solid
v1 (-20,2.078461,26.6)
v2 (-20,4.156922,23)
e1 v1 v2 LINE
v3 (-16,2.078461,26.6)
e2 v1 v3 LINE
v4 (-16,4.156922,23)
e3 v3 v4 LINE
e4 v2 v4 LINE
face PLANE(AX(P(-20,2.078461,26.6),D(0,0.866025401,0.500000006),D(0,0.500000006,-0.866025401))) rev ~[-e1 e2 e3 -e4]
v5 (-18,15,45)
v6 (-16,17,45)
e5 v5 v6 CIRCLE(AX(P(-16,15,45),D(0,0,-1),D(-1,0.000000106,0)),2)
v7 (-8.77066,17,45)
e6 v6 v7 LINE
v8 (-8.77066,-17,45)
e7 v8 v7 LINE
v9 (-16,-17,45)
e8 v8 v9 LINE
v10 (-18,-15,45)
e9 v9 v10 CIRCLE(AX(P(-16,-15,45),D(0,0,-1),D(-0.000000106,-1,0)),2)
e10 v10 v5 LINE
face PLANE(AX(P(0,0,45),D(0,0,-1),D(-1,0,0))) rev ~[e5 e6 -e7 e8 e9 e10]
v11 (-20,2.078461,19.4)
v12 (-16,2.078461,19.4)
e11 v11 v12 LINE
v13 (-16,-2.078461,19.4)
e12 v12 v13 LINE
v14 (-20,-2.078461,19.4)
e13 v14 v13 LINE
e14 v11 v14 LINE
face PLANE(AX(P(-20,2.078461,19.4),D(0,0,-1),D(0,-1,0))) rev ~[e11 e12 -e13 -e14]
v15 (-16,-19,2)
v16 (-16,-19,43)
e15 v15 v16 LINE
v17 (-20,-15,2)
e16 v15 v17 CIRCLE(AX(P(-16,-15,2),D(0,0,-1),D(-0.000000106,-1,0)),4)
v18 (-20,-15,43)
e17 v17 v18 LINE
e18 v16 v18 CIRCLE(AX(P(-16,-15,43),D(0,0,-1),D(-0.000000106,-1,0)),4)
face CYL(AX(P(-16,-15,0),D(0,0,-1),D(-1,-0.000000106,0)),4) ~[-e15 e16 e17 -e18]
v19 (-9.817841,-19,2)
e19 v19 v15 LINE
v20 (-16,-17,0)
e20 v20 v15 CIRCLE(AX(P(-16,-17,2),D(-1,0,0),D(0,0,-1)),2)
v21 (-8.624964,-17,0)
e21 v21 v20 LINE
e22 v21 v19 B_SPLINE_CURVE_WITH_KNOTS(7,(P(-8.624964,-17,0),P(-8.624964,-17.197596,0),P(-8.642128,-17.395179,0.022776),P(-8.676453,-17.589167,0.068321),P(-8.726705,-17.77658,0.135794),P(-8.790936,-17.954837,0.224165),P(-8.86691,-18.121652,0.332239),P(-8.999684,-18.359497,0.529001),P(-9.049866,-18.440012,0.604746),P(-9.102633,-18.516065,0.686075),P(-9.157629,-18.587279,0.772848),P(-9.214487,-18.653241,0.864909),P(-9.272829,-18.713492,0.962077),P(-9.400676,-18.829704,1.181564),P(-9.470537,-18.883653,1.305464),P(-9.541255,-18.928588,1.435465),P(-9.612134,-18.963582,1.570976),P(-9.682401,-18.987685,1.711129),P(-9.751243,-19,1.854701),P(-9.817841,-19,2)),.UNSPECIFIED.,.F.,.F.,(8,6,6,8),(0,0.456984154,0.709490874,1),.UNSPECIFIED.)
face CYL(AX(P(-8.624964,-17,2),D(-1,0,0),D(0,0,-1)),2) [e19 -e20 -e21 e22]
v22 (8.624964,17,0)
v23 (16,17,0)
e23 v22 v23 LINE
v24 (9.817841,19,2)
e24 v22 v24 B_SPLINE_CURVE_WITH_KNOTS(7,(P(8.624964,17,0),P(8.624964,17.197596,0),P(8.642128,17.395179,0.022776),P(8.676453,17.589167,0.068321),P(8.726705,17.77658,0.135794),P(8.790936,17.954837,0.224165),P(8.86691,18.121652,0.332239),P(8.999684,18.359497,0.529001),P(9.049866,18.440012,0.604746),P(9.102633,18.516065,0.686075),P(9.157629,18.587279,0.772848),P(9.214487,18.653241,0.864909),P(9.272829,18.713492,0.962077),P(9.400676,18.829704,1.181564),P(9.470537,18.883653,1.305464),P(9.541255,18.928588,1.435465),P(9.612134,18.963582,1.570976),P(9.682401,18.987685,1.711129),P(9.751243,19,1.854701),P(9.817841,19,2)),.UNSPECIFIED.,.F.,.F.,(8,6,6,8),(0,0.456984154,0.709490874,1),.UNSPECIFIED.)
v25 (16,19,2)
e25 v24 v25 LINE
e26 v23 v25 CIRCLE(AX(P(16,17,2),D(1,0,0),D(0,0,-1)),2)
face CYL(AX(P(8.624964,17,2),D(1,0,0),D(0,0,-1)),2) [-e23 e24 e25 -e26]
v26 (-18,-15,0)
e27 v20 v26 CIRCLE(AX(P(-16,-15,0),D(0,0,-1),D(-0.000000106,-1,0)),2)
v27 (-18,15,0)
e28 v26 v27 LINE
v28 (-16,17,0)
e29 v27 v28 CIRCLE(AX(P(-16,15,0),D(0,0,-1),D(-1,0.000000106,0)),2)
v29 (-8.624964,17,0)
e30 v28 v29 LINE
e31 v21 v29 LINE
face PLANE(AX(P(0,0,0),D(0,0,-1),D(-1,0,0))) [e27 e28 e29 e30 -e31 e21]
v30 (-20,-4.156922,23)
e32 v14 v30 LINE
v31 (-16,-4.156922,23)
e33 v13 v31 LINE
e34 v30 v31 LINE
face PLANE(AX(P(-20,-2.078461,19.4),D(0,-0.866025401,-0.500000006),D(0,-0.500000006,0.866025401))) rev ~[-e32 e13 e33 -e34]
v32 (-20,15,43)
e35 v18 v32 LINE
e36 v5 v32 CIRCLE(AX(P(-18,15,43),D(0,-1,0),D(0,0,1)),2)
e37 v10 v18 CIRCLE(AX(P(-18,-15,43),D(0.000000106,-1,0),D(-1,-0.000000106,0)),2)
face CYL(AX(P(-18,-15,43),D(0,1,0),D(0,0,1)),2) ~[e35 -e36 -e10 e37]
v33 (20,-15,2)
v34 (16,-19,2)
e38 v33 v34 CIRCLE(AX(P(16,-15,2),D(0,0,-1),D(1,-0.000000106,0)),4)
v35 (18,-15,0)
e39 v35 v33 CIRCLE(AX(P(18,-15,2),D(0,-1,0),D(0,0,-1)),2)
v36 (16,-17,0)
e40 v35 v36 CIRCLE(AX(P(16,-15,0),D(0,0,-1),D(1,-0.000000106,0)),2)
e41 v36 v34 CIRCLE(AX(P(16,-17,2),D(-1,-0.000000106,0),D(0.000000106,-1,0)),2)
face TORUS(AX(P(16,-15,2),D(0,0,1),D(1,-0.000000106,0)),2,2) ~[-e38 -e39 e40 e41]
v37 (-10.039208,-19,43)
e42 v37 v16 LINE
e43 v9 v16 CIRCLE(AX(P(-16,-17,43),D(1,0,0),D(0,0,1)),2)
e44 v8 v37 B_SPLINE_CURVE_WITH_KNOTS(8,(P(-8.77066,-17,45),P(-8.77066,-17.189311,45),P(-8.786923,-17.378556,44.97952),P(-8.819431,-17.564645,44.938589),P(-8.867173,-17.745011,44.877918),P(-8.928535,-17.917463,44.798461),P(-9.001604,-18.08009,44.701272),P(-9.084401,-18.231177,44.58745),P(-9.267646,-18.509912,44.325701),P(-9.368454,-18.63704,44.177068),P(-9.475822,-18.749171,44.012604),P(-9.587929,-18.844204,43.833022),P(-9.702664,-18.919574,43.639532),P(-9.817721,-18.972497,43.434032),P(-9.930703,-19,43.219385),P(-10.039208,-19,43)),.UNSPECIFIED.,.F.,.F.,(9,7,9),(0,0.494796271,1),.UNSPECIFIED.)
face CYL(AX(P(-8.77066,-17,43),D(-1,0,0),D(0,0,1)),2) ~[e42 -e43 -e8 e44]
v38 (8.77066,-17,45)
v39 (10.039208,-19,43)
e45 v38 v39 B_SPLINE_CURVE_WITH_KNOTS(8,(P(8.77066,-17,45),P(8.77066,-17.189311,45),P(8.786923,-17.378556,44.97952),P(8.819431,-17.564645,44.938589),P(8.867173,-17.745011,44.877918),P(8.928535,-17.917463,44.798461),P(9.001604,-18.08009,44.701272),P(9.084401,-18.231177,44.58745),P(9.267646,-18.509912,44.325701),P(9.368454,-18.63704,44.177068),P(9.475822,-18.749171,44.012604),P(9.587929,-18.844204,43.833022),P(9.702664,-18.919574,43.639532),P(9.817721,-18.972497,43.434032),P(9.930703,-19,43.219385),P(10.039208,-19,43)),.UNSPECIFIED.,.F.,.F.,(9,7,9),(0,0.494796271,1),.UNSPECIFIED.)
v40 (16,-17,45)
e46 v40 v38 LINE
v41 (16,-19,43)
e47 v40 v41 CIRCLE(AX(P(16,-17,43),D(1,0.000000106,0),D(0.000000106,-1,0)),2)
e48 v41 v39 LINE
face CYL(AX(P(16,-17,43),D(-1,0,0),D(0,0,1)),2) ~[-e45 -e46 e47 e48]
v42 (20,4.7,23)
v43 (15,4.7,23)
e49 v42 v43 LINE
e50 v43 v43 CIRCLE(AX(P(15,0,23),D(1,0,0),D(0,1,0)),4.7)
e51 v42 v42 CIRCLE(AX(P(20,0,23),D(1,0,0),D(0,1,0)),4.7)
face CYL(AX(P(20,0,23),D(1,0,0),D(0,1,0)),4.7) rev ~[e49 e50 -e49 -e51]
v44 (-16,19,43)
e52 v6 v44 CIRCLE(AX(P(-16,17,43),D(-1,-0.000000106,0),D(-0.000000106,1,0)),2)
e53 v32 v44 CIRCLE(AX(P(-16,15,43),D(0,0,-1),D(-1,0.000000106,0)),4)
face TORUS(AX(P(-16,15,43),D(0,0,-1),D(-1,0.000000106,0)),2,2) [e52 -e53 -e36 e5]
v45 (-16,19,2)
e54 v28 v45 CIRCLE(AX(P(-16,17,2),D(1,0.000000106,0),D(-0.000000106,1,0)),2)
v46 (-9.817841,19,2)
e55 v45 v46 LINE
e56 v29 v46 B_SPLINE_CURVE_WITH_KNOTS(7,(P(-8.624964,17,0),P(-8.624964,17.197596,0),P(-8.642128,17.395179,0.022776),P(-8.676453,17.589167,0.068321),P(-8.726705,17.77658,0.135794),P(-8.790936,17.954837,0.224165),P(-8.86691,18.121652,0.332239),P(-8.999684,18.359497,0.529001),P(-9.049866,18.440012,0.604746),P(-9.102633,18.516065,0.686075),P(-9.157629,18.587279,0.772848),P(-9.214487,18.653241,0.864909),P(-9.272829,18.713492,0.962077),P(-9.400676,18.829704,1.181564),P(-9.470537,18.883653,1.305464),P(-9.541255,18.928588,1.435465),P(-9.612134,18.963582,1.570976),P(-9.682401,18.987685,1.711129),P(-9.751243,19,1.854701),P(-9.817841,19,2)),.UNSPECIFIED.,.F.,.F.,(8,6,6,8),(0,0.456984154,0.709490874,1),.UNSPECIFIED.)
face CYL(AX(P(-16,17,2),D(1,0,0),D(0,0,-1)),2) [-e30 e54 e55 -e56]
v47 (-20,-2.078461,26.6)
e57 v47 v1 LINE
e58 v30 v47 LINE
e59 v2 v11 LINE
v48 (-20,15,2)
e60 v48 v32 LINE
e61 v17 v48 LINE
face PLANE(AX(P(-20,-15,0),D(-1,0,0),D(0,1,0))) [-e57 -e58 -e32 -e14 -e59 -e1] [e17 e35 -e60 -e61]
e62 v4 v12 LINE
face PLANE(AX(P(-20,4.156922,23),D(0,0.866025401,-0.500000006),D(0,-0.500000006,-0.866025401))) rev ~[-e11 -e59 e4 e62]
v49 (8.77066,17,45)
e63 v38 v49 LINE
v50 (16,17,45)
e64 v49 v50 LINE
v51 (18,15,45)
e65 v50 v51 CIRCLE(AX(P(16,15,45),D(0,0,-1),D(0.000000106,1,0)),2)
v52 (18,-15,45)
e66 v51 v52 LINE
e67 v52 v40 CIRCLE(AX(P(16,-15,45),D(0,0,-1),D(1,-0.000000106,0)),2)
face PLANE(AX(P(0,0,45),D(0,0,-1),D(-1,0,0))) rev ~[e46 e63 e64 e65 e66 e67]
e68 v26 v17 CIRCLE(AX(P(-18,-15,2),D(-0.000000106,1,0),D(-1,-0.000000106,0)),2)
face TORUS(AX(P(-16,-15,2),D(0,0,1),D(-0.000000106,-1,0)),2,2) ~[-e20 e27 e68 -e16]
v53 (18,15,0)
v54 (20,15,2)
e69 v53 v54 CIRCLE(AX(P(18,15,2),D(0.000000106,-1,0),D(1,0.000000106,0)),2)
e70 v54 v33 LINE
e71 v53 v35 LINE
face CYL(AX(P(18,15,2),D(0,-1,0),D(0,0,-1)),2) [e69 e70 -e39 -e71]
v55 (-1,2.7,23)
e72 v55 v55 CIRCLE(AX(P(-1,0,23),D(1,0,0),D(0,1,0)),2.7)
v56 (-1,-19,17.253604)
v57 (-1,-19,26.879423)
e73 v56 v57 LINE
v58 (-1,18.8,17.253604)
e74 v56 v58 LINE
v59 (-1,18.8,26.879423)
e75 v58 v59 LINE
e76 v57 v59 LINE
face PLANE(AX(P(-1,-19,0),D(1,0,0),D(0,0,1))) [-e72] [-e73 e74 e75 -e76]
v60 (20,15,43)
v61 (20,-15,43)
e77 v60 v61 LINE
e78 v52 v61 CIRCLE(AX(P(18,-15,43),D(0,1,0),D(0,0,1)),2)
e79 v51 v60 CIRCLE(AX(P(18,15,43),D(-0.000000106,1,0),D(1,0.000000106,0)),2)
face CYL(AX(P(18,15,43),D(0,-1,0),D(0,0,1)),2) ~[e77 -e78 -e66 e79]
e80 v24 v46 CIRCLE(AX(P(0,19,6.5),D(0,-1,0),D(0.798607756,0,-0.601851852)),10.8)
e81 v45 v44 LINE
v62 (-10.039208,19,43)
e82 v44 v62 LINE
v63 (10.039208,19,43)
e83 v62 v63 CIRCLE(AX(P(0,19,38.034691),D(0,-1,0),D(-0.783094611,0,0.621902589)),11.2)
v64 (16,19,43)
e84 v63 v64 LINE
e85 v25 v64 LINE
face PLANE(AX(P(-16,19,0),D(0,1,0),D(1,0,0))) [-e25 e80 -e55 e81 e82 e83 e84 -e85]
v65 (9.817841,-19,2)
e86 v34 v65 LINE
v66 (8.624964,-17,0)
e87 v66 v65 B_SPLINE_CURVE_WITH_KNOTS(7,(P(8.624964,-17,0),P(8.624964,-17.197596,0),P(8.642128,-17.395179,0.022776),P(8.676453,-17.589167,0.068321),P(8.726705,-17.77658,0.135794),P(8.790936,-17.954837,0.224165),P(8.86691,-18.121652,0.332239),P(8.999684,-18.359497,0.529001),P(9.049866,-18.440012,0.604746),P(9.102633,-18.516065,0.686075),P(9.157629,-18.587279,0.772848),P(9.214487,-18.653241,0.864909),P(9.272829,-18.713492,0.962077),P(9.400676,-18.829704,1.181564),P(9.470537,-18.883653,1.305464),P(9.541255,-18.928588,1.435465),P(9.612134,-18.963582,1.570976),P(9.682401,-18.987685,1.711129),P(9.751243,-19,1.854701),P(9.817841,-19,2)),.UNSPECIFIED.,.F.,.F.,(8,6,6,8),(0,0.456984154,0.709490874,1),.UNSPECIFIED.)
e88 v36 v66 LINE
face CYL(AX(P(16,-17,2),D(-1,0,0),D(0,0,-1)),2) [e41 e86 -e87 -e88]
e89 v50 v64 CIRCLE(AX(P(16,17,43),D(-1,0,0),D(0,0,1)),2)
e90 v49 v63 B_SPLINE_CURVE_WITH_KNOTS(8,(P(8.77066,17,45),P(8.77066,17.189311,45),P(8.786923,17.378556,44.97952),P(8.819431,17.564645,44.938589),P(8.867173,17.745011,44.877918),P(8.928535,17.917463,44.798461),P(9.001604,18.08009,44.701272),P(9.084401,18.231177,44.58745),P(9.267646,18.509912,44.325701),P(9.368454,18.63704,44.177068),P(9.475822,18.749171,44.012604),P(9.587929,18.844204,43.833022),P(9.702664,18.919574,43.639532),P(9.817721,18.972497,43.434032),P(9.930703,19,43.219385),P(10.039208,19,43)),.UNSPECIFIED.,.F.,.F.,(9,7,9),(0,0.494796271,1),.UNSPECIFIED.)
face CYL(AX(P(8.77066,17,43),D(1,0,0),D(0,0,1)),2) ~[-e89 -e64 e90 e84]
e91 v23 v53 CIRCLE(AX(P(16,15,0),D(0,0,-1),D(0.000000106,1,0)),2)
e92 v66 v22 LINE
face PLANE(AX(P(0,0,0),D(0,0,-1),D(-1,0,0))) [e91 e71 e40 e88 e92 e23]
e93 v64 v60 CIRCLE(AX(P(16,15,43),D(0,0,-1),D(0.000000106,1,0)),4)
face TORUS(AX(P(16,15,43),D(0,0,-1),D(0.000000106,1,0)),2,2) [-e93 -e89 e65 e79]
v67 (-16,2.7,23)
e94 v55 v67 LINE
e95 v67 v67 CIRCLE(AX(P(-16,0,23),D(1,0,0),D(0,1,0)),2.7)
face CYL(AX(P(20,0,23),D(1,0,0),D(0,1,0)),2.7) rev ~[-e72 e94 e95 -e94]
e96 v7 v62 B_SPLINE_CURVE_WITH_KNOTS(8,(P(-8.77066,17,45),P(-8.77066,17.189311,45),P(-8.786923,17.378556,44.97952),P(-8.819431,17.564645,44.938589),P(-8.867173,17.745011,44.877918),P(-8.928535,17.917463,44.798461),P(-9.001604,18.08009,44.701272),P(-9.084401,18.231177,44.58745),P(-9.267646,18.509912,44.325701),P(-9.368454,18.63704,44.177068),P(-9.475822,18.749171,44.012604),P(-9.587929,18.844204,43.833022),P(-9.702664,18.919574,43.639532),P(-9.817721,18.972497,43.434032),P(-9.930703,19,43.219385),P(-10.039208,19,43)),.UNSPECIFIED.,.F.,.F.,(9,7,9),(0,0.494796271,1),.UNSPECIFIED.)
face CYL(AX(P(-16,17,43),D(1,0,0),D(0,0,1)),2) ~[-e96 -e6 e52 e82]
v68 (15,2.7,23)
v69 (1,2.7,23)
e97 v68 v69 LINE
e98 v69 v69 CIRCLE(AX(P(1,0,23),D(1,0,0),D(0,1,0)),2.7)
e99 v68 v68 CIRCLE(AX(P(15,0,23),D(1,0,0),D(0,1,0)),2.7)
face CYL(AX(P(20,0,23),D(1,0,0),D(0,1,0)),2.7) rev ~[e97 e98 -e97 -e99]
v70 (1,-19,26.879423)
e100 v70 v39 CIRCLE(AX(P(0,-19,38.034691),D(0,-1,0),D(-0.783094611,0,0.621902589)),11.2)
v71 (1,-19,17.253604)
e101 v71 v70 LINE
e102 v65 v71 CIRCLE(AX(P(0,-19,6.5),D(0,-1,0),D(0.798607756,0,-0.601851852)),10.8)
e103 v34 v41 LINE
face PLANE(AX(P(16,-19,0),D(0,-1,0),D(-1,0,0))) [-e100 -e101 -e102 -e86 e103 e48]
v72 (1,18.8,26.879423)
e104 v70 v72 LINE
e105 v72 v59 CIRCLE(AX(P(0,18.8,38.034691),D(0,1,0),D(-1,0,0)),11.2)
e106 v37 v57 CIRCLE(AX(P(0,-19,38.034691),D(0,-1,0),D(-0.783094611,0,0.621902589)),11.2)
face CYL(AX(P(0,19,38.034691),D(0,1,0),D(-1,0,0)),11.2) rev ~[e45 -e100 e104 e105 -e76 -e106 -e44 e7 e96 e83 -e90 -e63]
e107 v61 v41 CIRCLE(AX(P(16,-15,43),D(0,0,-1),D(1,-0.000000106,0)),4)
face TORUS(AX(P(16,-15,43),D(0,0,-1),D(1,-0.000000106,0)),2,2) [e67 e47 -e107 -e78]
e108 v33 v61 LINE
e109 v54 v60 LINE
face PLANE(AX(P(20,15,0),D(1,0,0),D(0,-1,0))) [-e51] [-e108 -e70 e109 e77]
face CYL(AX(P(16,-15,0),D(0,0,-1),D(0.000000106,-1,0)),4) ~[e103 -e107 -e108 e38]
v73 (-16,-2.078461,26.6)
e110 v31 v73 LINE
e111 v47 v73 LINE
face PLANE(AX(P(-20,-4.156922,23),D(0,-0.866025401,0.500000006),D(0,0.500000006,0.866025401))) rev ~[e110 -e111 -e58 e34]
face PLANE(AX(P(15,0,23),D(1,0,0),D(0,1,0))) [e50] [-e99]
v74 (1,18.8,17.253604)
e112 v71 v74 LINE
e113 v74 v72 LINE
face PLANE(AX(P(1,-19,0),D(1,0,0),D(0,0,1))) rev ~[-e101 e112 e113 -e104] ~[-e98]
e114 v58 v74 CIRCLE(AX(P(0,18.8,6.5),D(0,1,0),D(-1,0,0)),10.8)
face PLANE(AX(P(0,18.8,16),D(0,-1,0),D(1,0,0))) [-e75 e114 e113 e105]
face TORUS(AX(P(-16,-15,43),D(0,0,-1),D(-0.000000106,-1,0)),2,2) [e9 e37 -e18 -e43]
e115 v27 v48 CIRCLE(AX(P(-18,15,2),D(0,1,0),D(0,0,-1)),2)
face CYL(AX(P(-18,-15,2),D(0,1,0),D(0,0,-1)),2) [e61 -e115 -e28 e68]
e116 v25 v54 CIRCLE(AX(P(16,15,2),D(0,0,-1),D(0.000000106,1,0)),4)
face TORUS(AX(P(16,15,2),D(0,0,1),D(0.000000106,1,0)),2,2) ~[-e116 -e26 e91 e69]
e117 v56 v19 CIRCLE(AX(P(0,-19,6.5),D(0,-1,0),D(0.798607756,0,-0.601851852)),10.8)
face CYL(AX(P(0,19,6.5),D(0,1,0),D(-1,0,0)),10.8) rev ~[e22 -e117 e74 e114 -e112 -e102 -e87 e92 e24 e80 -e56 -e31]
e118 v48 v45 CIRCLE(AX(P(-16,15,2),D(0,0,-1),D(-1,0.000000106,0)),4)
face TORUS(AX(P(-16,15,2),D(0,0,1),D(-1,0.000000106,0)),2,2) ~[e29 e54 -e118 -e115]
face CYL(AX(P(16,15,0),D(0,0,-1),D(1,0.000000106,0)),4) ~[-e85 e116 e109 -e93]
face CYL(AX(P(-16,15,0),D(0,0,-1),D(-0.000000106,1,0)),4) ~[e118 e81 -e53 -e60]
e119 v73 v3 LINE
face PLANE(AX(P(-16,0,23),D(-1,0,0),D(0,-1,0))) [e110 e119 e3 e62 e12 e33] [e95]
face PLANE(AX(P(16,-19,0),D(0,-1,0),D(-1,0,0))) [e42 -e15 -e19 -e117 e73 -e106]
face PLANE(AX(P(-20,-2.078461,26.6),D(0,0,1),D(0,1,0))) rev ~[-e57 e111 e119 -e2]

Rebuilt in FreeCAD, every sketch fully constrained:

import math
import FreeCAD as App
import Part
import Sketcher
Q = App.Units.Quantity


def edges_at(feature, points):
    """Names of the edges that pass closest to the given points."""
    edges = feature.Shape.Edges
    near = lambda p: min(range(len(edges)), key=lambda i: edges[i].distToShape(Part.Vertex(*p))[0])
    return sorted({f"Edge{near(p) + 1}" for p in points})

doc = App.newDocument("Part")
body = doc.addObject("PartDesign::Body", "Body")

sketch1 = body.newObject("Sketcher::SketchObject", "Sketch")
sketch1.AttachmentSupport = (doc.getObject("XY_Plane"), [""])
sketch1.MapMode = "FlatFace"
sketch1.addGeometry([
    Part.LineSegment(App.Vector(16, 19, 0), App.Vector(-16, 19, 0)),
    Part.ArcOfCircle(Part.Circle(App.Vector(-16, 15, 0), App.Vector(0, 0, 1), 4), math.radians(90.000006), math.radians(179.999994)),
    Part.LineSegment(App.Vector(-20, 15, 0), App.Vector(-20, -15, 0)),
    Part.ArcOfCircle(Part.Circle(App.Vector(-16, -15, 0), App.Vector(0, 0, 1), 4), math.radians(-179.999994), math.radians(-90.000006)),
    Part.LineSegment(App.Vector(-16, -19, 0), App.Vector(16, -19, 0)),
    Part.ArcOfCircle(Part.Circle(App.Vector(16, -15, 0), App.Vector(0, 0, 1), 4), math.radians(-89.999994), math.radians(-0.000006)),
    Part.LineSegment(App.Vector(20, -15, 0), App.Vector(20, 15, 0)),
    Part.ArcOfCircle(Part.Circle(App.Vector(16, 15, 0), App.Vector(0, 0, 1), 4), math.radians(0.000006), math.radians(89.999994)),
], False)
sketch1.addConstraint([
    Sketcher.Constraint("Tangent", 0, 2, 1, 1),
    Sketcher.Constraint("Tangent", 1, 2, 2, 1),
    Sketcher.Constraint("Tangent", 2, 2, 3, 1),
    Sketcher.Constraint("Tangent", 3, 2, 4, 1),
    Sketcher.Constraint("Tangent", 4, 2, 5, 1),
    Sketcher.Constraint("Tangent", 5, 2, 6, 1),
    Sketcher.Constraint("Tangent", 6, 2, 7, 1),
    Sketcher.Constraint("Tangent", 7, 2, 0, 1),
    Sketcher.Constraint("Horizontal", 0),
    Sketcher.Constraint("Vertical", 2),
    Sketcher.Constraint("Horizontal", 4),
    Sketcher.Constraint("Vertical", 6),
    Sketcher.Constraint("Equal", 1, 3),
    Sketcher.Constraint("Equal", 3, 5),
    Sketcher.Constraint("Equal", 5, 7),
    Sketcher.Constraint("Symmetric", 1, 3, 5, 3, -1, 1),
    Sketcher.Constraint("Radius", 1, 4.0),
    Sketcher.Constraint("DistanceX", 0, 2, 0, 1, 32.0),
    Sketcher.Constraint("DistanceY", 2, 2, 2, 1, 30.0),
])
pad1 = body.newObject("PartDesign::Pad", "Pad")
pad1.Profile = sketch1
pad1.Length = 45

sketch2 = body.newObject("Sketcher::SketchObject", "Sketch001")
sketch2.AttachmentSupport = (doc.getObject("XZ_Plane"), [""])
sketch2.MapMode = "FlatFace"
sketch2.AttachmentOffset = App.Placement(App.Vector(0, 0, -19), App.Rotation())
sketch2.addGeometry([
    Part.Circle(App.Vector(0, 38.034691, 0), App.Vector(0, 0, 1), 11.2),
    Part.Circle(App.Vector(0, 6.5, 0), App.Vector(0, 0, 1), 10.8),
], False)
sketch2.addConstraint([
    Sketcher.Constraint("PointOnObject", 0, 3, -2),
    Sketcher.Constraint("PointOnObject", 1, 3, -2),
    Sketcher.Constraint("Diameter", 0, 22.4),
    Sketcher.Constraint("Diameter", 1, 21.6),
    Sketcher.Constraint("DistanceY", -1, 1, 1, 3, 6.5),
    Sketcher.Constraint("DistanceY", -1, 1, 0, 3, 38.034691),
])
pocket1 = body.newObject("PartDesign::Pocket", "Pocket")
pocket1.Profile = sketch2
pocket1.Type = "ThroughAll"
pocket1.Reversed = True

sketch3 = body.newObject("Sketcher::SketchObject", "Sketch002")
sketch3.AttachmentSupport = (doc.getObject("YZ_Plane"), [""])
sketch3.MapMode = "FlatFace"
sketch3.AttachmentOffset = App.Placement(App.Vector(0, 0, 20), App.Rotation())
sketch3.addGeometry(Part.Circle(App.Vector(0, 23, 0), App.Vector(0, 0, 1), 2.7), False)
sketch3.addConstraint([
    Sketcher.Constraint("PointOnObject", 0, 3, -2),
    Sketcher.Constraint("Diameter", 0, 5.4),
    Sketcher.Constraint("DistanceY", -1, 1, 0, 3, 23.0),
])
pocket2 = body.newObject("PartDesign::Pocket", "Pocket001")
pocket2.Profile = sketch3
pocket2.Type = "ThroughAll"

sketch4 = body.newObject("Sketcher::SketchObject", "Sketch003")
sketch4.AttachmentSupport = (doc.getObject("YZ_Plane"), [""])
sketch4.MapMode = "FlatFace"
sketch4.AttachmentOffset = App.Placement(App.Vector(0, 0, 20), App.Rotation())
sketch4.addGeometry(Part.Circle(App.Vector(0, 23, 0), App.Vector(0, 0, 1), 4.7), False)
sketch4.addConstraint([
    Sketcher.Constraint("PointOnObject", 0, 3, -2),
    Sketcher.Constraint("Diameter", 0, 9.4),
    Sketcher.Constraint("DistanceY", -1, 1, 0, 3, 23.0),
])
pocket3 = body.newObject("PartDesign::Pocket", "Pocket002")
pocket3.Profile = sketch4
pocket3.Length = 5

sketch5 = body.newObject("Sketcher::SketchObject", "Sketch004")
sketch5.AttachmentSupport = (doc.getObject("YZ_Plane"), [""])
sketch5.MapMode = "FlatFace"
sketch5.AttachmentOffset = App.Placement(App.Vector(0, 0, -20), App.Rotation())
sketch5.addGeometry([
    Part.LineSegment(App.Vector(-4.156922, 23, 0), App.Vector(-2.078461, 26.6, 0)),
    Part.LineSegment(App.Vector(-2.078461, 26.6, 0), App.Vector(2.078461, 26.6, 0)),
    Part.LineSegment(App.Vector(2.078461, 26.6, 0), App.Vector(4.156922, 23, 0)),
    Part.LineSegment(App.Vector(4.156922, 23, 0), App.Vector(2.078461, 19.4, 0)),
    Part.LineSegment(App.Vector(2.078461, 19.4, 0), App.Vector(-2.078461, 19.4, 0)),
    Part.LineSegment(App.Vector(-2.078461, 19.4, 0), App.Vector(-4.156922, 23, 0)),
], False)
sketch5.addConstraint([
    Sketcher.Constraint("Coincident", 0, 2, 1, 1),
    Sketcher.Constraint("Coincident", 1, 2, 2, 1),
    Sketcher.Constraint("Coincident", 2, 2, 3, 1),
    Sketcher.Constraint("Coincident", 3, 2, 4, 1),
    Sketcher.Constraint("Coincident", 4, 2, 5, 1),
    Sketcher.Constraint("Coincident", 5, 2, 0, 1),
    Sketcher.Constraint("Horizontal", 1),
    Sketcher.Constraint("Horizontal", 4),
    Sketcher.Constraint("Symmetric", 2, 2, 5, 2, -2),
    Sketcher.Constraint("Parallel", 0, 3),
    Sketcher.Constraint("Parallel", 2, 5),
    Sketcher.Constraint("Vertical", 1, 2, 3, 2),
    Sketcher.Constraint("Vertical", 0, 2, 4, 2),
    Sketcher.Constraint("Angle", 0, Q("60 deg")),
    Sketcher.Constraint("DistanceY", -1, 1, 2, 2, 23.0),
    Sketcher.Constraint("DistanceY", -1, 1, 0, 2, 26.6),
    Sketcher.Constraint("DistanceX", 1, 1, 1, 2, 4.156922),
])
pocket4 = body.newObject("PartDesign::Pocket", "Pocket003")
pocket4.Profile = sketch5
pocket4.Length = 4
pocket4.Reversed = True

sketch6 = body.newObject("Sketcher::SketchObject", "Sketch005")
sketch6.AttachmentSupport = (doc.getObject("XZ_Plane"), [""])
sketch6.MapMode = "FlatFace"
sketch6.AttachmentOffset = App.Placement(App.Vector(0, 0, 19), App.Rotation())
sketch6.addGeometry([
    Part.LineSegment(App.Vector(-1, 32, 0), App.Vector(-1, 0, 0)),
    Part.LineSegment(App.Vector(-1, 0, 0), App.Vector(1, 0, 0)),
    Part.LineSegment(App.Vector(1, 0, 0), App.Vector(1, 32, 0)),
    Part.LineSegment(App.Vector(1, 32, 0), App.Vector(-1, 32, 0)),
], False)
sketch6.addConstraint([
    Sketcher.Constraint("Coincident", 0, 2, 1, 1),
    Sketcher.Constraint("Coincident", 1, 2, 2, 1),
    Sketcher.Constraint("Coincident", 2, 2, 3, 1),
    Sketcher.Constraint("Coincident", 3, 2, 0, 1),
    Sketcher.Constraint("Vertical", 0),
    Sketcher.Constraint("Horizontal", 1),
    Sketcher.Constraint("Vertical", 2),
    Sketcher.Constraint("Horizontal", 3),
    Sketcher.Constraint("Symmetric", 0, 2, 1, 2, -1, 1),
    Sketcher.Constraint("DistanceX", 1, 1, 1, 2, 2.0),
    Sketcher.Constraint("DistanceY", 0, 2, 0, 1, 32.0),
])
pocket5 = body.newObject("PartDesign::Pocket", "Pocket004")
pocket5.Profile = sketch6
pocket5.Length = 37.8
doc.recompute()

fillet = body.newObject("PartDesign::Fillet", "Fillet")
fillet.Base = (pocket5, edges_at(pocket5, [
    (20, 0, 0),
    (20, 0, 45),
    (-20, 0, 0),
    (-20, 0, 45),
]))
fillet.Radius = 2

doc.recompute()
